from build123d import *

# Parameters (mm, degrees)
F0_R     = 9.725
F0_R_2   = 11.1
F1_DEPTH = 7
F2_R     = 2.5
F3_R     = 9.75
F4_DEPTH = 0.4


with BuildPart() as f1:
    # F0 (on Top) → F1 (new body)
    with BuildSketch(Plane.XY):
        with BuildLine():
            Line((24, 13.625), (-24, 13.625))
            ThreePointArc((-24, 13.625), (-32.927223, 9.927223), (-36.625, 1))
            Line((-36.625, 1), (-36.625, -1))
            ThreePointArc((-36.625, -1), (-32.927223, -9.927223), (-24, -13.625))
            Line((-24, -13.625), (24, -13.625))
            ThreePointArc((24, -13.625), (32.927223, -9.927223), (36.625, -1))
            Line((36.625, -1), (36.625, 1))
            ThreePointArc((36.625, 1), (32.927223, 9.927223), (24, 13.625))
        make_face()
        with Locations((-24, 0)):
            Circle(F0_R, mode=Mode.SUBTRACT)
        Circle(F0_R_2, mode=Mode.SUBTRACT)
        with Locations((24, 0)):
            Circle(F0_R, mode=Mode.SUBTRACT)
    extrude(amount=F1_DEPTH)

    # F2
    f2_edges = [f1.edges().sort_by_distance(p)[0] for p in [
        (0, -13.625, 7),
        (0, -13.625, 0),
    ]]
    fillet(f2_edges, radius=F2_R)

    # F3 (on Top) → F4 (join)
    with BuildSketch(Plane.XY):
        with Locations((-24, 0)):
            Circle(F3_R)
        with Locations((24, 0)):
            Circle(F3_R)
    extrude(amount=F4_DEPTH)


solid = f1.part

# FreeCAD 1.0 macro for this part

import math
import FreeCAD as App
import Part
import Sketcher


def edges_at(feature, points):
    """Names of the edges that pass closest to the given points."""
    edges = feature.Shape.Edges
    near = lambda p: min(range(len(edges)), key=lambda i: edges[i].distToShape(Part.Vertex(*p))[0])
    return sorted({f"Edge{near(p) + 1}" for p in points})

doc = App.newDocument("Part")
body = doc.addObject("PartDesign::Body", "Body")

sketch1 = doc.addObject("Sketcher::SketchObject", "Sketch")
body.addObject(sketch1)
sketch1.AttachmentSupport = (doc.XY_Plane, [""])
sketch1.MapMode = "FlatFace"
sketch1.addGeometry(Part.LineSegment(App.Vector(24, 13.6, 0), App.Vector(-24, 13.6, 0)), False)
sketch1.addGeometry(Part.ArcOfCircle(Part.Circle(App.Vector(-24, 1, 0), App.Vector(0, 0, 1), 12.6), math.radians(90), math.radians(180)), False)
sketch1.addGeometry(Part.LineSegment(App.Vector(-36.6, 1, 0), App.Vector(-36.6, -1, 0)), False)
sketch1.addGeometry(Part.ArcOfCircle(Part.Circle(App.Vector(-24, -1, 0), App.Vector(0, 0, 1), 12.6), math.radians(-180), math.radians(-90)), False)
sketch1.addGeometry(Part.LineSegment(App.Vector(-24, -13.6, 0), App.Vector(24, -13.6, 0)), False)
sketch1.addGeometry(Part.ArcOfCircle(Part.Circle(App.Vector(24, -1, 0), App.Vector(0, 0, 1), 12.6), math.radians(-90), math.radians(0)), False)
sketch1.addGeometry(Part.LineSegment(App.Vector(36.6, -1, 0), App.Vector(36.6, 1, 0)), False)
sketch1.addGeometry(Part.ArcOfCircle(Part.Circle(App.Vector(24, 1, 0), App.Vector(0, 0, 1), 12.6), math.radians(0), math.radians(90)), False)
sketch1.addGeometry(Part.Circle(App.Vector(-24, 0, 0), App.Vector(0, 0, 1), 9.7), False)
sketch1.addGeometry(Part.Circle(App.Vector(0, 0, 0), App.Vector(0, 0, 1), 11.1), False)
sketch1.addGeometry(Part.Circle(App.Vector(24, 0, 0), App.Vector(0, 0, 1), 9.7), False)
sketch1.addConstraint(Sketcher.Constraint("Tangent", 0, 2, 1, 1))
sketch1.addConstraint(Sketcher.Constraint("Tangent", 1, 2, 2, 1))
sketch1.addConstraint(Sketcher.Constraint("Tangent", 2, 2, 3, 1))
sketch1.addConstraint(Sketcher.Constraint("Tangent", 3, 2, 4, 1))
sketch1.addConstraint(Sketcher.Constraint("Tangent", 4, 2, 5, 1))
sketch1.addConstraint(Sketcher.Constraint("Tangent", 5, 2, 6, 1))
sketch1.addConstraint(Sketcher.Constraint("Tangent", 6, 2, 7, 1))
sketch1.addConstraint(Sketcher.Constraint("Tangent", 7, 2, 0, 1))
sketch1.addConstraint(Sketcher.Constraint("Horizontal", 0))
sketch1.addConstraint(Sketcher.Constraint("Vertical", 2))
sketch1.addConstraint(Sketcher.Constraint("Horizontal", 4))
sketch1.addConstraint(Sketcher.Constraint("Vertical", 6))
sketch1.addConstraint(Sketcher.Constraint("Coincident", 9, 3, -1, 1))
sketch1.addConstraint(Sketcher.Constraint("Equal", 1, 3))
sketch1.addConstraint(Sketcher.Constraint("Equal", 3, 5))
sketch1.addConstraint(Sketcher.Constraint("Equal", 5, 7))
sketch1.addConstraint(Sketcher.Constraint("Equal", 8, 10))
sketch1.addConstraint(Sketcher.Constraint("Symmetric", 1, 3, 5, 3, -1, 1))
sketch1.addConstraint(Sketcher.Constraint("Symmetric", 8, 3, 10, 3, -1, 1))
sketch1.addConstraint(Sketcher.Constraint("PointOnObject", 8, 3, -1))
sketch1.addConstraint(Sketcher.Constraint("Vertical", 3, 3, 8, 3))
sketch1.addConstraint(Sketcher.Constraint("Diameter", 9, 22.2))
sketch1.addConstraint(Sketcher.Constraint("Diameter", 8, 19.45))
sketch1.addConstraint(Sketcher.Constraint("DistanceX", 0, 2, 0, 1, 48.0))
sketch1.addConstraint(Sketcher.Constraint("DistanceY", 2, 2, 2, 1, 2.0))
sketch1.addConstraint(Sketcher.Constraint("Radius", 1, 12.625))
pad1 = doc.addObject("PartDesign::Pad", "Pad")
body.addObject(pad1)
pad1.Profile = sketch1
pad1.Length = 7
doc.recompute()

fillet = doc.addObject("PartDesign::Fillet", "Fillet")
body.addObject(fillet)
fillet.Base = (pad1, edges_at(pad1, [(0, -13.625, 7), (0, -13.625, 0)]))
fillet.Radius = 2.5

sketch2 = doc.addObject("Sketcher::SketchObject", "Sketch001")
body.addObject(sketch2)
sketch2.AttachmentSupport = (doc.XY_Plane, [""])
sketch2.MapMode = "FlatFace"
sketch2.addGeometry(Part.Circle(App.Vector(-24, 0, 0), App.Vector(0, 0, 1), 10), False)
sketch2.addGeometry(Part.Circle(App.Vector(24, 0, 0), App.Vector(0, 0, 1), 10), False)
sketch2.addConstraint(Sketcher.Constraint("Equal", 0, 1))
sketch2.addConstraint(Sketcher.Constraint("Symmetric", 0, 3, 1, 3, -1, 1))
sketch2.addConstraint(Sketcher.Constraint("PointOnObject", 0, 3, -1))
sketch2.addConstraint(Sketcher.Constraint("Diameter", 0, 19.5))
sketch2.addConstraint(Sketcher.Constraint("DistanceX", 0, 3, -1, 1, 24.0))
pad2 = doc.addObject("PartDesign::Pad", "Pad001")
body.addObject(pad2)
pad2.Profile = sketch2
pad2.Length = 0.4

doc.recompute()
